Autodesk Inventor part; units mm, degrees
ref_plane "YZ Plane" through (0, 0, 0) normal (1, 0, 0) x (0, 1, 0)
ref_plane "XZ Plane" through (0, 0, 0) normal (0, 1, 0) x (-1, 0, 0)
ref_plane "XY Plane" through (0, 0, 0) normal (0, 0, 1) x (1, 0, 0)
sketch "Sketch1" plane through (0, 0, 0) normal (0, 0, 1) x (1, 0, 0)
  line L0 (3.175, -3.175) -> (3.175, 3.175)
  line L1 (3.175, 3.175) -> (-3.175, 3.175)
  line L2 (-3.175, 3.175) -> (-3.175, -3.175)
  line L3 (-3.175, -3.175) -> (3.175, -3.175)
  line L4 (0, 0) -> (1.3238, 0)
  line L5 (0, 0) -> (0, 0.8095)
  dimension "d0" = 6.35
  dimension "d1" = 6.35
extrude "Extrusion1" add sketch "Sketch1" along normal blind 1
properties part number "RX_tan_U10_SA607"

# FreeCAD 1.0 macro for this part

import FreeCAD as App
import Part
import Sketcher

V = App.Vector
Q = App.Units.Quantity


def add_polygon(sketch, points):
    """Adds a closed chain of lines whose ends are joined by coincident constraints."""
    first, n = sketch.GeometryCount, len(points)
    for a, b in zip(points, points[1:] + points[:1]):
        sketch.addGeometry(Part.LineSegment(App.Vector(*a, 0), App.Vector(*b, 0)), False)
    for i in range(n):
        sketch.addConstraint(Sketcher.Constraint("Coincident", first + i, 2, first + (i + 1) % n, 1))

doc = App.newDocument("Part")
body = doc.addObject("PartDesign::Body", "Body")

# Sketch on XY plane
sketch1 = body.newObject("Sketcher::SketchObject", "Sketch")
sketch1.AttachmentSupport = (doc.getObject("XY_Plane"), [""])
sketch1.MapMode = "FlatFace"
add_polygon(sketch1, [(-3, -3), (3, -3), (3, 3), (-3, 3)])  # lines 0-3
sketch1.addConstraint([
    Sketcher.Constraint("Horizontal", 0),
    Sketcher.Constraint("Vertical", 1),
    Sketcher.Constraint("Horizontal", 2),
    Sketcher.Constraint("Vertical", 3),
    Sketcher.Constraint("Symmetric", 0, 2, 2, 2, -1, 1),
    Sketcher.Constraint("Equal", 2, 1),
    Sketcher.Constraint("DistanceX", 0, 1, 0, 2, Q("6.35 mm")),
])
pad1 = body.newObject("PartDesign::Pad", "Pad")
pad1.Profile = sketch1
pad1.Length = 1

doc.recompute()
